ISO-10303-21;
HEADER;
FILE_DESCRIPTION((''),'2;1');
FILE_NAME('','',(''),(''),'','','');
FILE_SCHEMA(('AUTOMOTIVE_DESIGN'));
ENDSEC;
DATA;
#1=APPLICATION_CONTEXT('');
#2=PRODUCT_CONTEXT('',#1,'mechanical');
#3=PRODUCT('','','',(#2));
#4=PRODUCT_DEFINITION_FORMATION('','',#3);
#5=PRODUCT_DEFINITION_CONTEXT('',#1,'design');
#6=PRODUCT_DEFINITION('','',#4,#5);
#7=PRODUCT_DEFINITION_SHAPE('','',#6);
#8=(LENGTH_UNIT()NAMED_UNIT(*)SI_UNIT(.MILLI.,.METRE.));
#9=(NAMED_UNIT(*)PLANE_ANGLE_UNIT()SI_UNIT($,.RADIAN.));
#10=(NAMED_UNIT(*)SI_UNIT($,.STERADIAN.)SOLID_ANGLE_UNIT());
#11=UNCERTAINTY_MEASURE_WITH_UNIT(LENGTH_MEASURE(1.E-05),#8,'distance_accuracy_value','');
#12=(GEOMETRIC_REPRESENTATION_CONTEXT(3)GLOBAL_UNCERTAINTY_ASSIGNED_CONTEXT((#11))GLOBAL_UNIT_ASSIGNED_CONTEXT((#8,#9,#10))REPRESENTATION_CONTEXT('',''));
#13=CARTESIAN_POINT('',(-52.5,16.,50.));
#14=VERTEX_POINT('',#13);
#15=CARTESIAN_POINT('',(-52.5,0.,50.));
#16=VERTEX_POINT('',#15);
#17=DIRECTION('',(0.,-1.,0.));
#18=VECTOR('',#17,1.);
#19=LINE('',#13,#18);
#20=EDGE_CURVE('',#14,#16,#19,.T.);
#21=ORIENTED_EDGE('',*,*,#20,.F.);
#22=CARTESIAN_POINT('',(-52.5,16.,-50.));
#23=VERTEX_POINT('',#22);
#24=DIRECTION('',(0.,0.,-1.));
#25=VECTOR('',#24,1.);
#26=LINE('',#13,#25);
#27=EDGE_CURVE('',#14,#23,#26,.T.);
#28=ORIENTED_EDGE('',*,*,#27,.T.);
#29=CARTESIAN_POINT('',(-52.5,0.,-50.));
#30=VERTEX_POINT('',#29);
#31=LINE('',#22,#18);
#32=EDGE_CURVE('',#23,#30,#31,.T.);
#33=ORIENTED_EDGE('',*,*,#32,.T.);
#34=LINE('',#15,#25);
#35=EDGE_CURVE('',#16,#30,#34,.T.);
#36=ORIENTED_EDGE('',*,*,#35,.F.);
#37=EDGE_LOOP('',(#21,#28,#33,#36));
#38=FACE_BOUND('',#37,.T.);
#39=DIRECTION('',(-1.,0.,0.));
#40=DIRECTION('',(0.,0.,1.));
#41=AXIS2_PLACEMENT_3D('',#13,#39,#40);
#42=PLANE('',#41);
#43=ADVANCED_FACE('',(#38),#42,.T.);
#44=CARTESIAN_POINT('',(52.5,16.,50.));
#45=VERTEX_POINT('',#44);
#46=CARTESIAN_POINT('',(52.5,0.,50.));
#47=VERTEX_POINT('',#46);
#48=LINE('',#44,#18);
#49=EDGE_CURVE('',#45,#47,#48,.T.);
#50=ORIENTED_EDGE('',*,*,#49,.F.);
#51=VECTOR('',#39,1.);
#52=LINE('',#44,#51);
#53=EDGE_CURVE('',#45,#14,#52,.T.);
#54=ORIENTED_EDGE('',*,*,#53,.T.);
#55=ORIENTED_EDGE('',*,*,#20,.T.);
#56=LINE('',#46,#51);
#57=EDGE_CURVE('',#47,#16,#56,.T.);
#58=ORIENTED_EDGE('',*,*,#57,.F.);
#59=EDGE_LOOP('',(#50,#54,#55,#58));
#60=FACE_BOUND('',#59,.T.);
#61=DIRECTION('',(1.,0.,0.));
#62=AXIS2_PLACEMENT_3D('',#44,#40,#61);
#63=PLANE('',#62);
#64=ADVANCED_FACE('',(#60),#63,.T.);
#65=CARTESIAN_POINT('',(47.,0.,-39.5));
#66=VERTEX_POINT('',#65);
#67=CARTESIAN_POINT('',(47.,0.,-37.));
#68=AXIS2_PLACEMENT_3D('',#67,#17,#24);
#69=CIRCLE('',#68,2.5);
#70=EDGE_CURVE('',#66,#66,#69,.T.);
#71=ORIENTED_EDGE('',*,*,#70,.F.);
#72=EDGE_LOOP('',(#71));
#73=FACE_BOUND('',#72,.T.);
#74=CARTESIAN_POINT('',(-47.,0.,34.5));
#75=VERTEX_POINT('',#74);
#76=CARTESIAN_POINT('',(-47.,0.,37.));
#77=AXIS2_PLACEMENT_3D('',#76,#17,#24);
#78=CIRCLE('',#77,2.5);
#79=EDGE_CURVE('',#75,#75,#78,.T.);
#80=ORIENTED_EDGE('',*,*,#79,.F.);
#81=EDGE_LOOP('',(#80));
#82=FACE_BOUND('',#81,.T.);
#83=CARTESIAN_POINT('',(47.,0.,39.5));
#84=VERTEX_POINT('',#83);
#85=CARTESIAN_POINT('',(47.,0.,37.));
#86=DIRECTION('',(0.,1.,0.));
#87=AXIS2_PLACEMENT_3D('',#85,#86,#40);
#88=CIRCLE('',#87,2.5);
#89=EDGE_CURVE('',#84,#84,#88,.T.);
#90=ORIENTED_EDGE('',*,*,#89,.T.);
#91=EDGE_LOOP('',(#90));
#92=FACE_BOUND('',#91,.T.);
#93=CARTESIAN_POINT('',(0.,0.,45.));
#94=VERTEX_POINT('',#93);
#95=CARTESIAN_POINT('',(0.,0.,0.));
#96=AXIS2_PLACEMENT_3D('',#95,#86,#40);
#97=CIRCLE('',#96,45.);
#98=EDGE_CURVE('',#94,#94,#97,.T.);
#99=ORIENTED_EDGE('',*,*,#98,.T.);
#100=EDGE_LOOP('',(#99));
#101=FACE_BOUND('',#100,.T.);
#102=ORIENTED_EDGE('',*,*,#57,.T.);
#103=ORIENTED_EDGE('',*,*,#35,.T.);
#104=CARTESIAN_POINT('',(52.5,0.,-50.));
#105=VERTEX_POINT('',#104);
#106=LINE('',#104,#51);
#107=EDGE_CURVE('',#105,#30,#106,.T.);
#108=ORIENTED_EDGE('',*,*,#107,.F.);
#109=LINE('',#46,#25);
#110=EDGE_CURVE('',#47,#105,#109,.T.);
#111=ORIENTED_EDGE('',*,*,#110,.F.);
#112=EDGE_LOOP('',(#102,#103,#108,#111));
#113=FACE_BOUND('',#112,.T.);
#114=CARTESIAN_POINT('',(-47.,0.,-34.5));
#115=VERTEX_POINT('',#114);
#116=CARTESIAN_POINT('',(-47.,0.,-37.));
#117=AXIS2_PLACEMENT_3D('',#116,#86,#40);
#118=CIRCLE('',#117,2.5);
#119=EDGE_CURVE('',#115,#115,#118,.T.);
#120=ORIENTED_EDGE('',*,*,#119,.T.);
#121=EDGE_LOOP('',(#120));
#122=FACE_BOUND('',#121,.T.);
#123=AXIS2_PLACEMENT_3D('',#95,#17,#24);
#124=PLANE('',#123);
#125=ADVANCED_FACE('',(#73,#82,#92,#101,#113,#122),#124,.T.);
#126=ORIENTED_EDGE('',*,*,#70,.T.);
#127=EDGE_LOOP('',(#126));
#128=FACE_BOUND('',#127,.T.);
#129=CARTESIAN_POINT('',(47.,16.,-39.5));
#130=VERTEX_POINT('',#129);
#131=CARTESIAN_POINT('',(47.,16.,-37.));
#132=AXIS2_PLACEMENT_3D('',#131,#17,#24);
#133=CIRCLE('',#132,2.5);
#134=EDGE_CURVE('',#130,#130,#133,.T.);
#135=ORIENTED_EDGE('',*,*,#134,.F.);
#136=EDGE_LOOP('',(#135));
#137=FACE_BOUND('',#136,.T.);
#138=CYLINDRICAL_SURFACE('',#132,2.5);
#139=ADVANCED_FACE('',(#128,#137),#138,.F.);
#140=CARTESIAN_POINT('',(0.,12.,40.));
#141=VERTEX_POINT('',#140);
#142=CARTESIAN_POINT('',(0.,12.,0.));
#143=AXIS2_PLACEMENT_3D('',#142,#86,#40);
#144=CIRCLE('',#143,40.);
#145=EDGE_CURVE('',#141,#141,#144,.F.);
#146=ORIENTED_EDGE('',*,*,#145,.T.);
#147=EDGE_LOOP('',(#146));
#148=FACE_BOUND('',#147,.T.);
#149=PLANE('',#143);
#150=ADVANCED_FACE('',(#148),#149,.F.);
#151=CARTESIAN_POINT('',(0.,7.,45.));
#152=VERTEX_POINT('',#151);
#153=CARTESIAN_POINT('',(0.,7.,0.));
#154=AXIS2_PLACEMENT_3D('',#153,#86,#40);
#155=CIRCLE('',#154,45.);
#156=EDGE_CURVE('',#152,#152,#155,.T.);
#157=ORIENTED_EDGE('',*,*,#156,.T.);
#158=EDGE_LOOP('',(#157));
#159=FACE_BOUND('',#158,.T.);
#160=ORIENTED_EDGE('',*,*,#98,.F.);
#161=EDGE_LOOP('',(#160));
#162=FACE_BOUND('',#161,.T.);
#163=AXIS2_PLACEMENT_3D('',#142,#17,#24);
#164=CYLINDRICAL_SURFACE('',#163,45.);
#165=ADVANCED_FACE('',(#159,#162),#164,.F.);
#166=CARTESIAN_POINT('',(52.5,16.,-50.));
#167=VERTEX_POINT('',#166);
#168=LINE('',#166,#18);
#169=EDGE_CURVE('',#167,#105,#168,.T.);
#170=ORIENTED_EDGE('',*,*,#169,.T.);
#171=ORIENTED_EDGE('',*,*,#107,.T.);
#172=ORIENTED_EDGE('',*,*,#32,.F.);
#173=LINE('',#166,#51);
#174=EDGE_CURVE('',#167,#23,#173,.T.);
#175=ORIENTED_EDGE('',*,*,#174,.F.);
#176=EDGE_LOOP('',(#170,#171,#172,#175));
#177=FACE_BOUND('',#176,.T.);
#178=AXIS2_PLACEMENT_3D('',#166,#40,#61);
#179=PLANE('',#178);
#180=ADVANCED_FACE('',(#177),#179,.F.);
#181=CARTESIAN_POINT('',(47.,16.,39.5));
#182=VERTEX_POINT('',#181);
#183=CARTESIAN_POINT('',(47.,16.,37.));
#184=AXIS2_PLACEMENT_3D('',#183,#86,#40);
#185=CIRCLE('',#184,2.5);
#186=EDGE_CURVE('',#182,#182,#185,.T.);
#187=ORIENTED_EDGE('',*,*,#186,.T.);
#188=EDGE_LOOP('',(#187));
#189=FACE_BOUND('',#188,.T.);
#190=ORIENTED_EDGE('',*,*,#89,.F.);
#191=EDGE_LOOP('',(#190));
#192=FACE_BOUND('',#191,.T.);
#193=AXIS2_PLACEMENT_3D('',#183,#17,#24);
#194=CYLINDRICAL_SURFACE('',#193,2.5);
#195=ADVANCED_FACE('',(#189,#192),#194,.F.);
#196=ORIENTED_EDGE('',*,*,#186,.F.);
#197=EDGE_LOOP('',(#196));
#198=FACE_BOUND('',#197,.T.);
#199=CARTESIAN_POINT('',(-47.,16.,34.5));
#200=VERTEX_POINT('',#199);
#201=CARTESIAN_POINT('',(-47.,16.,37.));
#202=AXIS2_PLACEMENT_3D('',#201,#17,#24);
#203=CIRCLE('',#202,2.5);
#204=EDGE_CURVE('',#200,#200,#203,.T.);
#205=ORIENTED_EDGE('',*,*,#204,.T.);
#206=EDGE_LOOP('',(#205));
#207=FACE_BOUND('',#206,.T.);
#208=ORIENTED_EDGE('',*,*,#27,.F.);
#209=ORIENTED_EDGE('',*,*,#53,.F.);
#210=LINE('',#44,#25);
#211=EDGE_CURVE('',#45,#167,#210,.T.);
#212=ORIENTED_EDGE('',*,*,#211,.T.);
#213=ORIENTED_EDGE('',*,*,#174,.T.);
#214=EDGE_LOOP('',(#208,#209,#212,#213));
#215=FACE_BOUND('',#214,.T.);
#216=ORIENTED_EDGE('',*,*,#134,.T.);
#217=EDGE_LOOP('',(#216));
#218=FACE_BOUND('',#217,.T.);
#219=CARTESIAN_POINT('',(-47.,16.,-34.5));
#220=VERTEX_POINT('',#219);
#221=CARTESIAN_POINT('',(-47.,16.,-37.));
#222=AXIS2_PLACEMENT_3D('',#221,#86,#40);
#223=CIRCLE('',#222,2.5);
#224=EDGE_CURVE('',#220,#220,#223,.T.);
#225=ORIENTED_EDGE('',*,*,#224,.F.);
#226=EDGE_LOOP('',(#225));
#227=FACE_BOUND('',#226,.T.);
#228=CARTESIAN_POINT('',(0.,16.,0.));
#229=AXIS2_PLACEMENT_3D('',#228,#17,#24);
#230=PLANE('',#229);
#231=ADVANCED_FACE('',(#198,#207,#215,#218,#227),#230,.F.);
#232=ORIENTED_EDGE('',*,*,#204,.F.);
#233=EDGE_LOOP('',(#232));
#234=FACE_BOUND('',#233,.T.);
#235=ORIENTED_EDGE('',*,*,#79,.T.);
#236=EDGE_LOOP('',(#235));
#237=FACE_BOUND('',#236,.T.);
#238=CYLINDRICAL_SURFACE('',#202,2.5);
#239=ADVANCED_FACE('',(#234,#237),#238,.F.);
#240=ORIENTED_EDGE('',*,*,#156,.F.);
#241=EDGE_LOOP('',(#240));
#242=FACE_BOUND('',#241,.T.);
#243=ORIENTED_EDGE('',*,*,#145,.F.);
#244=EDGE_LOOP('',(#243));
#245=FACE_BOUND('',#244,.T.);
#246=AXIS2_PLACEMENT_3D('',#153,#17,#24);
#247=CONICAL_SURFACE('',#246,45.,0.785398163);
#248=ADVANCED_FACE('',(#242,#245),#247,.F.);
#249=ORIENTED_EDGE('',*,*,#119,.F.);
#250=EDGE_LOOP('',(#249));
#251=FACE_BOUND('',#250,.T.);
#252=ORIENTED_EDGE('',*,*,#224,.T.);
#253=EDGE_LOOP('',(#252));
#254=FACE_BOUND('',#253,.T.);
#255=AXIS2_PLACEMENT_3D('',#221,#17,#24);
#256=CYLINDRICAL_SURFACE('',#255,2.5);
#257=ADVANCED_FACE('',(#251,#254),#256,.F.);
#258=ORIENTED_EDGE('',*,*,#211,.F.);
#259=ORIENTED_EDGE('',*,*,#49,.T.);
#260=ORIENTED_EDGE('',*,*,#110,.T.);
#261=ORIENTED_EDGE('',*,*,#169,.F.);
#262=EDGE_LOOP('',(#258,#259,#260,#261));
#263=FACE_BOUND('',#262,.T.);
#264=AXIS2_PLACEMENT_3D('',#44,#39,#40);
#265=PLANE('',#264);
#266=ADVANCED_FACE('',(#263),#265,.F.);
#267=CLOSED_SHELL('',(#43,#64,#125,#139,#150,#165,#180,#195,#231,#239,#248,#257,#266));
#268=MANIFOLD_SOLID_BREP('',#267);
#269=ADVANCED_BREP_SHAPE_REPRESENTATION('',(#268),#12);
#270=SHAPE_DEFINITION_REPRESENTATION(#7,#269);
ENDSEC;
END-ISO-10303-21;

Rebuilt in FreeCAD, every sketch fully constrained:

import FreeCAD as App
import Part
import Sketcher

V = App.Vector
Q = App.Units.Quantity


def edges_at(feature, points):
    """Names of the edges that pass closest to the given points."""
    edges = feature.Shape.Edges
    near = lambda p: min(range(len(edges)), key=lambda i: edges[i].distToShape(Part.Vertex(*p))[0])
    return sorted({f"Edge{near(p) + 1}" for p in points})

doc = App.newDocument("Part")
body = doc.addObject("PartDesign::Body", "Body")

# Sketch on XZ plane
sketch1 = body.newObject("Sketcher::SketchObject", "Sketch")
sketch1.AttachmentSupport = (doc.getObject("XZ_Plane"), [""])
sketch1.MapMode = "FlatFace"
sketch1.addGeometry([
    Part.LineSegment(V(-52.5, -50, 0), V(-52.5, 50, 0)),  # 0
    Part.LineSegment(V(-52.5, 50, 0), V(52.5, 50, 0)),  # 1
    Part.LineSegment(V(52.5, 50, 0), V(52.5, -50, 0)),  # 2
    Part.LineSegment(V(52.5, -50, 0), V(-52.5, -50, 0)),  # 3
    Part.Circle(V(-47, 37, 0), V(0, 0, 1), 2.5),  # 4
    Part.Circle(V(47, 37, 0), V(0, 0, 1), 2.5),  # 5
    Part.Circle(V(-47, -37, 0), V(0, 0, 1), 2.5),  # 6
    Part.Circle(V(47, -37, 0), V(0, 0, 1), 2.5),  # 7
], False)
sketch1.addConstraint([
    Sketcher.Constraint("Coincident", 0, 2, 1, 1),
    Sketcher.Constraint("Coincident", 1, 2, 2, 1),
    Sketcher.Constraint("Coincident", 2, 2, 3, 1),
    Sketcher.Constraint("Coincident", 3, 2, 0, 1),
    Sketcher.Constraint("Vertical", 0),
    Sketcher.Constraint("Horizontal", 1),
    Sketcher.Constraint("Vertical", 2),
    Sketcher.Constraint("Horizontal", 3),
    Sketcher.Constraint("Equal", 4, 5),
    Sketcher.Constraint("Equal", 5, 6),
    Sketcher.Constraint("Equal", 6, 7),
    Sketcher.Constraint("Symmetric", 5, 3, 6, 3, -1, 1),
    Sketcher.Constraint("Symmetric", 4, 3, 7, 3, -1, 1),
    Sketcher.Constraint("Symmetric", 0, 2, 2, 2, -1, 1),
    Sketcher.Constraint("Symmetric", 4, 3, 5, 3, -2),
    Sketcher.Constraint("Diameter", 4, Q("5 mm")),
    Sketcher.Constraint("DistanceX", 1, 1, 1, 2, Q("105 mm")),
    Sketcher.Constraint("DistanceY", 0, 1, 0, 2, Q("100 mm")),
    Sketcher.Constraint("DistanceX", 4, 3, -1, 1, Q("47 mm")),
    Sketcher.Constraint("DistanceY", -1, 1, 4, 3, Q("37 mm")),
])
pad1 = body.newObject("PartDesign::Pad", "Pad")
pad1.Profile = sketch1
pad1.Length = 16
pad1.Reversed = True

# Sketch on XZ plane
sketch2 = body.newObject("Sketcher::SketchObject", "Sketch001")
sketch2.AttachmentSupport = (doc.getObject("XZ_Plane"), [""])
sketch2.MapMode = "FlatFace"
sketch2.addGeometry(Part.Circle(V(0, 0, 0), V(0, 0, 1), 45), False)
sketch2.addConstraint([
    Sketcher.Constraint("Coincident", 0, 3, -1, 1),
    Sketcher.Constraint("Diameter", 0, Q("90 mm")),
])
pocket1 = body.newObject("PartDesign::Pocket", "Pocket")
pocket1.Profile = sketch2
pocket1.Length = 12
doc.recompute()

chamfer = body.newObject("PartDesign::Chamfer", "Chamfer")
chamfer.Base = (pocket1, edges_at(pocket1, [(-45, 12, 0)]))
chamfer.Size = 5

doc.recompute()
